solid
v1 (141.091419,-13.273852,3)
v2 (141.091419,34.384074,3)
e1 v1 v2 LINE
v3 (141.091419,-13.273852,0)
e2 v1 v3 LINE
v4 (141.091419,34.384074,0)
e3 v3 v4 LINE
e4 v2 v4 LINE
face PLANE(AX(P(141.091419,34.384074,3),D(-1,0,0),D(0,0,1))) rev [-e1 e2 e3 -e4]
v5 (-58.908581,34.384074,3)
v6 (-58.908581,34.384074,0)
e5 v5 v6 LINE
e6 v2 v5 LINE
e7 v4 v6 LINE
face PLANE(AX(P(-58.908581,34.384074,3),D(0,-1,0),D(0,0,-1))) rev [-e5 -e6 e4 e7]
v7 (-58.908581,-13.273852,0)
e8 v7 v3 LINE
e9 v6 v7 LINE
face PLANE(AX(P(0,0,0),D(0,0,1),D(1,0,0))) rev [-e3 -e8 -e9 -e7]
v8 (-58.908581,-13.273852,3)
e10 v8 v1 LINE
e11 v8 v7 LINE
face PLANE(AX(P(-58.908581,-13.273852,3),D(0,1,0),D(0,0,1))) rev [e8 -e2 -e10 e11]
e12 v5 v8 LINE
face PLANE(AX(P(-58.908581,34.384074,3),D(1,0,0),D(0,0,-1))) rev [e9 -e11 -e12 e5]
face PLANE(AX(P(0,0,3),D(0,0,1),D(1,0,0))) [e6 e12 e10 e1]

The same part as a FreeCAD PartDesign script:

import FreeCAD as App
import Part
import Sketcher

V = App.Vector
Q = App.Units.Quantity


def add_polygon(sketch, points):
    """Adds a closed chain of lines whose ends are joined by coincident constraints."""
    first, n = sketch.GeometryCount, len(points)
    for a, b in zip(points, points[1:] + points[:1]):
        sketch.addGeometry(Part.LineSegment(App.Vector(*a, 0), App.Vector(*b, 0)), False)
    for i in range(n):
        sketch.addConstraint(Sketcher.Constraint("Coincident", first + i, 2, first + (i + 1) % n, 1))

doc = App.newDocument("Part")
body = doc.addObject("PartDesign::Body", "Body")

# Sketch on XY plane
sketch1 = body.newObject("Sketcher::SketchObject", "Sketch")
sketch1.AttachmentSupport = (doc.getObject("XY_Plane"), [""])
sketch1.MapMode = "FlatFace"
add_polygon(sketch1, [(-58.908581, 34.384074), (-58.908581, -13.273852), (141.091419, -13.273852), (141.091419, 34.384074)])  # lines 0-3
sketch1.addConstraint(Sketcher.Constraint("Vertical", 0))
sketch1.addConstraint(Sketcher.Constraint("Horizontal", 1))
sketch1.addConstraint(Sketcher.Constraint("Vertical", 2))
sketch1.addConstraint(Sketcher.Constraint("Horizontal", 3))
sketch1.addConstraint(Sketcher.Constraint("DistanceX", 1, 1, 1, 2, Q("200 mm")))
sketch1.addConstraint(Sketcher.Constraint("DistanceY", 0, 2, 0, 1, Q("47.657926 mm")))
sketch1.addConstraint(Sketcher.Constraint("DistanceX", 0, 2, -1, 1, Q("58.908581 mm")))
sketch1.addConstraint(Sketcher.Constraint("DistanceY", 0, 2, -1, 1, Q("13.273852 mm")))
pad1 = body.newObject("PartDesign::Pad", "Pad")
pad1.Profile = sketch1
pad1.Length = 3

doc.recompute()
